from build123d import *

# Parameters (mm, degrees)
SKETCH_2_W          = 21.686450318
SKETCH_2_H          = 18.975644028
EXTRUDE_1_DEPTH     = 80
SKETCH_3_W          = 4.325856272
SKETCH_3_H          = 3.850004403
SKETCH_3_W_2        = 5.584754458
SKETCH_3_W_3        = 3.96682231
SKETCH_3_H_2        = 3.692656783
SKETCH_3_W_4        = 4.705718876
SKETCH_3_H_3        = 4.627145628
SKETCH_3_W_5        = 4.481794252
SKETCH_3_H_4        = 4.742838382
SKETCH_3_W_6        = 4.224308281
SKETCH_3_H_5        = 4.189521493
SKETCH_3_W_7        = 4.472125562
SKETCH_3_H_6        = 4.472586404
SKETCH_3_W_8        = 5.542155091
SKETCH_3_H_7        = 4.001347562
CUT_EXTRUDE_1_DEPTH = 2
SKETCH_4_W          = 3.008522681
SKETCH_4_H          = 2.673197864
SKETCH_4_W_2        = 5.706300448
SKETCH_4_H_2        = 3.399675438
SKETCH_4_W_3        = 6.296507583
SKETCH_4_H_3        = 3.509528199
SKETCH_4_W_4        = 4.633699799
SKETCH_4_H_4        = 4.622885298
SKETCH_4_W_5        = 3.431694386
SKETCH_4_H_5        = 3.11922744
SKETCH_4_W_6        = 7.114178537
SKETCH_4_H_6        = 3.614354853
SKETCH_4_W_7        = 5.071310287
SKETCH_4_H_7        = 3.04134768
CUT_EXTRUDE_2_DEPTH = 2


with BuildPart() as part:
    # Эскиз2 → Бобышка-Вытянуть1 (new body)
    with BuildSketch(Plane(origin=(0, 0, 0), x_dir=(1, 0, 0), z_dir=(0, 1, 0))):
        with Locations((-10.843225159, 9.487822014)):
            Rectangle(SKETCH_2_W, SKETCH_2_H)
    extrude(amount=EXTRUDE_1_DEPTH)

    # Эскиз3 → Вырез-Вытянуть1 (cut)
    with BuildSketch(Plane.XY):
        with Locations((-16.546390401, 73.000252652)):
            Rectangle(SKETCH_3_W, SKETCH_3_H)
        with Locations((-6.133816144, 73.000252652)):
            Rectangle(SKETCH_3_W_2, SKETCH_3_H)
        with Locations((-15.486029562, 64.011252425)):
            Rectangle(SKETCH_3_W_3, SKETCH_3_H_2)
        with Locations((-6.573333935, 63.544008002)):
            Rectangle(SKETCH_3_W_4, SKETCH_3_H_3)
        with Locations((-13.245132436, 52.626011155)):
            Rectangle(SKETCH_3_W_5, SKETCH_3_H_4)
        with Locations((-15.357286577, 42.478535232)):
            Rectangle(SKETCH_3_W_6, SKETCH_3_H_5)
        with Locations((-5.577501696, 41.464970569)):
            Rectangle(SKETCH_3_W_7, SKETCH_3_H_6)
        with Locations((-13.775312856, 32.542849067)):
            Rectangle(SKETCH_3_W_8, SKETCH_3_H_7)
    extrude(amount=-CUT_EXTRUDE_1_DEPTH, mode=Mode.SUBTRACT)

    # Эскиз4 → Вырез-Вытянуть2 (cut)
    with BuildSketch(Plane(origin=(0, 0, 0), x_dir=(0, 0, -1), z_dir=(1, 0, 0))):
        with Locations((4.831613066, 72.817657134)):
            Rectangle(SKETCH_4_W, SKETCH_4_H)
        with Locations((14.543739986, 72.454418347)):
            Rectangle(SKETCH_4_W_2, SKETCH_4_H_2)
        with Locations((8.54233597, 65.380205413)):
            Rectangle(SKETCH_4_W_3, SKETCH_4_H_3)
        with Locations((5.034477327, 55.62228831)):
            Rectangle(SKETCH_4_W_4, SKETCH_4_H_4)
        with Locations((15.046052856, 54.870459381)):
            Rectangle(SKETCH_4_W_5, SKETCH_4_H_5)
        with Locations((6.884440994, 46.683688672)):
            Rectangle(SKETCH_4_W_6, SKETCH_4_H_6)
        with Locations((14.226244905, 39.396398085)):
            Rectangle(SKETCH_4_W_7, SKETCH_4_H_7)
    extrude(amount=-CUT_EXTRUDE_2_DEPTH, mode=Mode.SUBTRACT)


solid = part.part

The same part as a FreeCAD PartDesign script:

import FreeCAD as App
import Part
import Sketcher
from FreeCAD import Vector
Q = App.Units.Quantity


def add_polygon(sketch, points):
    """Adds a closed chain of lines whose ends are joined by coincident constraints."""
    first, n = sketch.GeometryCount, len(points)
    for a, b in zip(points, points[1:] + points[:1]):
        sketch.addGeometry(Part.LineSegment(App.Vector(*a, 0), App.Vector(*b, 0)), False)
    for i in range(n):
        sketch.addConstraint(Sketcher.Constraint("Coincident", first + i, 2, first + (i + 1) % n, 1))

doc = App.newDocument("Part")
body = doc.addObject("PartDesign::Body", "Body")

# Sketch on XZ plane
sketch1 = body.newObject("Sketcher::SketchObject", "Sketch")
sketch1.AttachmentSupport = (doc.getObject("XZ_Plane"), [""])
sketch1.MapMode = "FlatFace"
add_polygon(sketch1, [(-21.68645, -18.975644), (-21.68645, 0), (0, 0), (0, -18.975644)])  # lines 0-3
sketch1.addConstraint([
    Sketcher.Constraint("Vertical", 0),
    Sketcher.Constraint("Horizontal", 1),
    Sketcher.Constraint("Vertical", 2),
    Sketcher.Constraint("Horizontal", 3),
    Sketcher.Constraint("Coincident", 1, 2, -1, 1),
    Sketcher.Constraint("DistanceX", 1, 1, 1, 2, Q("21.68645 mm")),
    Sketcher.Constraint("DistanceY", 0, 1, 0, 2, Q("18.975644 mm")),
])
pad1 = body.newObject("PartDesign::Pad", "Pad")
pad1.Profile = sketch1
pad1.Length = 80
pad1.Reversed = True

# Sketch on XY plane
sketch2 = body.newObject("Sketcher::SketchObject", "Sketch001")
sketch2.AttachmentSupport = (doc.getObject("XY_Plane"), [""])
sketch2.MapMode = "FlatFace"
add_polygon(sketch2, [(-18.709319, 74.925255), (-18.709319, 71.07525), (-14.383462, 71.07525), (-14.383462, 74.925255)])  # lines 0-3
add_polygon(sketch2, [(-8.926193, 74.925255), (-8.926193, 71.07525), (-3.341439, 71.07525), (-3.341439, 74.925255)])  # lines 4-7
add_polygon(sketch2, [(-17.469441, 65.857581), (-17.469441, 62.164924), (-13.502618, 62.164924), (-13.502618, 65.857581)])  # lines 8-11
add_polygon(sketch2, [(-8.926193, 65.857581), (-8.926193, 61.230435), (-4.220474, 61.230435), (-4.220474, 65.857581)])  # lines 12-15
add_polygon(sketch2, [(-15.48603, 54.99743), (-15.48603, 50.254592), (-11.004235, 50.254592), (-11.004235, 54.99743)])  # lines 16-19
add_polygon(sketch2, [(-17.469441, 44.573296), (-17.469441, 40.383774), (-13.245132, 40.383774), (-13.245132, 44.573296)])  # lines 20-23
add_polygon(sketch2, [(-7.813564, 43.701264), (-7.813564, 39.228677), (-3.341439, 39.228677), (-3.341439, 43.701264)])  # lines 24-27
add_polygon(sketch2, [(-16.54639, 34.543523), (-16.54639, 30.542175), (-11.004235, 30.542175), (-11.004235, 34.543523)])  # lines 28-31
sketch2.addConstraint([
    Sketcher.Constraint("Vertical", 0),
    Sketcher.Constraint("Horizontal", 1),
    Sketcher.Constraint("Vertical", 2),
    Sketcher.Constraint("Horizontal", 3),
    Sketcher.Constraint("Vertical", 4),
    Sketcher.Constraint("Horizontal", 5),
    Sketcher.Constraint("Vertical", 6),
    Sketcher.Constraint("Horizontal", 7),
    Sketcher.Constraint("Vertical", 8),
    Sketcher.Constraint("Horizontal", 9),
    Sketcher.Constraint("Vertical", 10),
    Sketcher.Constraint("Horizontal", 11),
    Sketcher.Constraint("Vertical", 12),
    Sketcher.Constraint("Horizontal", 13),
    Sketcher.Constraint("Vertical", 14),
    Sketcher.Constraint("Horizontal", 15),
    Sketcher.Constraint("Vertical", 16),
    Sketcher.Constraint("Horizontal", 17),
    Sketcher.Constraint("Vertical", 18),
    Sketcher.Constraint("Horizontal", 19),
    Sketcher.Constraint("Vertical", 20),
    Sketcher.Constraint("Horizontal", 21),
    Sketcher.Constraint("Vertical", 22),
    Sketcher.Constraint("Horizontal", 23),
    Sketcher.Constraint("Vertical", 24),
    Sketcher.Constraint("Horizontal", 25),
    Sketcher.Constraint("Vertical", 26),
    Sketcher.Constraint("Horizontal", 27),
    Sketcher.Constraint("Vertical", 28),
    Sketcher.Constraint("Horizontal", 29),
    Sketcher.Constraint("Vertical", 30),
    Sketcher.Constraint("Horizontal", 31),
    Sketcher.Constraint("Horizontal", 1, 2, 4, 2),
    Sketcher.Constraint("Horizontal", 3, 2, 6, 2),
    Sketcher.Constraint("Horizontal", 11, 2, 14, 2),
    Sketcher.Constraint("Vertical", 7, 2, 12, 2),
    Sketcher.Constraint("Vertical", 11, 2, 20, 2),
    Sketcher.Constraint("Vertical", 6, 2, 25, 2),
    Sketcher.Constraint("Vertical", 18, 2, 29, 2),
    Sketcher.Constraint("DistanceX", 20, 2, 25, 2, Q("14.128002 mm")),
    Sketcher.Constraint("DistanceX", 13, 1, 13, 2, Q("4.705719 mm")),
    Sketcher.Constraint("DistanceX", 21, 1, 21, 2, Q("4.224308 mm")),
    Sketcher.Constraint("DistanceY", 16, 2, 16, 1, Q("4.742838 mm")),
    Sketcher.Constraint("DistanceY", 20, 2, 20, 1, Q("4.189521 mm")),
    Sketcher.Constraint("DistanceX", 0, 2, 9, 2, Q("5.2067 mm")),
    Sketcher.Constraint("DistanceY", 28, 2, 20, 2, Q("9.841599 mm")),
    Sketcher.Constraint("DistanceX", 1, 1, 1, 2, Q("4.325856 mm")),
    Sketcher.Constraint("DistanceX", 5, 1, 5, 2, Q("5.584754 mm")),
    Sketcher.Constraint("DistanceX", 9, 1, 9, 2, Q("3.966822 mm")),
    Sketcher.Constraint("DistanceX", 17, 1, 17, 2, Q("4.481794 mm")),
    Sketcher.Constraint("DistanceX", 25, 1, 25, 2, Q("4.472126 mm")),
    Sketcher.Constraint("DistanceX", 29, 1, 29, 2, Q("5.542155 mm")),
    Sketcher.Constraint("DistanceY", 0, 2, 0, 1, Q("3.850004 mm")),
    Sketcher.Constraint("DistanceY", 8, 2, 8, 1, Q("3.692657 mm")),
    Sketcher.Constraint("DistanceY", 12, 2, 12, 1, Q("4.627146 mm")),
    Sketcher.Constraint("DistanceY", 24, 2, 24, 1, Q("4.472586 mm")),
    Sketcher.Constraint("DistanceY", 28, 2, 28, 1, Q("4.001348 mm")),
    Sketcher.Constraint("DistanceX", 0, 2, -1, 1, Q("18.709319 mm")),
    Sketcher.Constraint("DistanceY", -1, 1, 0, 2, Q("71.07525 mm")),
    Sketcher.Constraint("DistanceY", -1, 1, 10, 2, Q("65.857581 mm")),
    Sketcher.Constraint("DistanceX", 16, 2, -1, 1, Q("15.48603 mm")),
    Sketcher.Constraint("DistanceY", -1, 1, 16, 2, Q("50.254592 mm")),
    Sketcher.Constraint("DistanceY", 20, 2, 8, 2, Q("21.78115 mm")),
    Sketcher.Constraint("DistanceY", 24, 2, 22, 2, Q("5.344619 mm")),
])
pocket1 = body.newObject("PartDesign::Pocket", "Pocket")
pocket1.Profile = sketch2
pocket1.Length = 2

# Sketch on YZ plane
sketch3 = body.newObject("Sketcher::SketchObject", "Sketch002")
sketch3.AttachmentSupport = (doc.getObject("YZ_Plane"), [""])
sketch3.MapMode = "FlatFace"
add_polygon(sketch3, [(74.154256, -3.327352), (71.481058, -3.327352), (71.481058, -6.335874), (74.154256, -6.335874)])  # lines 0-3
add_polygon(sketch3, [(74.154256, -11.69059), (70.754581, -11.69059), (70.754581, -17.39689), (74.154256, -17.39689)])  # lines 4-7
add_polygon(sketch3, [(67.13497, -5.394082), (63.625441, -5.394082), (63.625441, -11.69059), (67.13497, -11.69059)])  # lines 8-11
add_polygon(sketch3, [(57.933731, -2.717627), (53.310846, -2.717627), (53.310846, -7.351327), (57.933731, -7.351327)])  # lines 12-15
add_polygon(sketch3, [(56.430073, -13.330206), (53.310846, -13.330206), (53.310846, -16.7619), (56.430073, -16.7619)])  # lines 16-19
add_polygon(sketch3, [(48.490866, -3.327352), (44.876511, -3.327352), (44.876511, -10.44153), (48.490866, -10.44153)])  # lines 20-23
add_polygon(sketch3, [(40.917072, -11.69059), (37.875724, -11.69059), (37.875724, -16.7619), (40.917072, -16.7619)])  # lines 24-27
sketch3.addConstraint([
    Sketcher.Constraint("Horizontal", 0),
    Sketcher.Constraint("Vertical", 1),
    Sketcher.Constraint("Horizontal", 2),
    Sketcher.Constraint("Vertical", 3),
    Sketcher.Constraint("Horizontal", 4),
    Sketcher.Constraint("Vertical", 5),
    Sketcher.Constraint("Horizontal", 6),
    Sketcher.Constraint("Vertical", 7),
    Sketcher.Constraint("Horizontal", 8),
    Sketcher.Constraint("Vertical", 9),
    Sketcher.Constraint("Horizontal", 10),
    Sketcher.Constraint("Vertical", 11),
    Sketcher.Constraint("Horizontal", 12),
    Sketcher.Constraint("Vertical", 13),
    Sketcher.Constraint("Horizontal", 14),
    Sketcher.Constraint("Vertical", 15),
    Sketcher.Constraint("Horizontal", 16),
    Sketcher.Constraint("Vertical", 17),
    Sketcher.Constraint("Horizontal", 18),
    Sketcher.Constraint("Vertical", 19),
    Sketcher.Constraint("Horizontal", 20),
    Sketcher.Constraint("Vertical", 21),
    Sketcher.Constraint("Horizontal", 22),
    Sketcher.Constraint("Vertical", 23),
    Sketcher.Constraint("Horizontal", 24),
    Sketcher.Constraint("Vertical", 25),
    Sketcher.Constraint("Horizontal", 26),
    Sketcher.Constraint("Vertical", 27),
    Sketcher.Constraint("Horizontal", 7, 2, 9, 2),
    Sketcher.Constraint("Horizontal", 3, 2, 20, 2),
    Sketcher.Constraint("Horizontal", 10, 2, 24, 2),
    Sketcher.Constraint("Horizontal", 18, 2, 25, 2),
    Sketcher.Constraint("Vertical", 3, 2, 6, 2),
    Sketcher.Constraint("Vertical", 13, 2, 16, 2),
    Sketcher.Constraint("DistanceY", 5, 2, 5, 1, Q("5.7063 mm")),
    Sketcher.Constraint("DistanceY", 13, 2, 13, 1, Q("4.6337 mm")),
    Sketcher.Constraint("DistanceX", 8, 2, 8, 1, Q("3.509528 mm")),
    Sketcher.Constraint("DistanceY", 21, 2, 21, 1, Q("7.114179 mm")),
    Sketcher.Constraint("DistanceY", 25, 2, 25, 1, Q("5.07131 mm")),
    Sketcher.Constraint("DistanceY", 17, 2, -1, 1, Q("16.7619 mm")),
    Sketcher.Constraint("DistanceX", 0, 2, 0, 1, Q("2.673198 mm")),
    Sketcher.Constraint("DistanceX", 4, 2, 4, 1, Q("3.399675 mm")),
    Sketcher.Constraint("DistanceX", 12, 2, 12, 1, Q("4.622885 mm")),
    Sketcher.Constraint("DistanceX", 16, 2, 16, 1, Q("3.119227 mm")),
    Sketcher.Constraint("DistanceX", 20, 2, 20, 1, Q("3.614355 mm")),
    Sketcher.Constraint("DistanceX", 24, 2, 24, 1, Q("3.041348 mm")),
    Sketcher.Constraint("DistanceY", 1, 2, 1, 1, Q("3.008523 mm")),
    Sketcher.Constraint("DistanceY", 9, 2, 9, 1, Q("6.296508 mm")),
    Sketcher.Constraint("DistanceY", 17, 2, 17, 1, Q("3.431694 mm")),
    Sketcher.Constraint("DistanceX", -1, 1, 0, 2, Q("71.481058 mm")),
    Sketcher.Constraint("DistanceY", 0, 2, -1, 1, Q("3.327352 mm")),
    Sketcher.Constraint("DistanceX", -1, 1, 8, 2, Q("63.625441 mm")),
    Sketcher.Constraint("DistanceX", -1, 1, 14, 2, Q("57.933731 mm")),
    Sketcher.Constraint("DistanceX", -1, 1, 20, 2, Q("44.876511 mm")),
    Sketcher.Constraint("DistanceX", -1, 1, 26, 2, Q("40.917072 mm")),
    Sketcher.Constraint("DistanceY", 16, 2, 13, 2, Q("5.978878 mm")),
])
pocket2 = body.newObject("PartDesign::Pocket", "Pocket001")
pocket2.Profile = sketch3
pocket2.Length = 2

doc.recompute()
